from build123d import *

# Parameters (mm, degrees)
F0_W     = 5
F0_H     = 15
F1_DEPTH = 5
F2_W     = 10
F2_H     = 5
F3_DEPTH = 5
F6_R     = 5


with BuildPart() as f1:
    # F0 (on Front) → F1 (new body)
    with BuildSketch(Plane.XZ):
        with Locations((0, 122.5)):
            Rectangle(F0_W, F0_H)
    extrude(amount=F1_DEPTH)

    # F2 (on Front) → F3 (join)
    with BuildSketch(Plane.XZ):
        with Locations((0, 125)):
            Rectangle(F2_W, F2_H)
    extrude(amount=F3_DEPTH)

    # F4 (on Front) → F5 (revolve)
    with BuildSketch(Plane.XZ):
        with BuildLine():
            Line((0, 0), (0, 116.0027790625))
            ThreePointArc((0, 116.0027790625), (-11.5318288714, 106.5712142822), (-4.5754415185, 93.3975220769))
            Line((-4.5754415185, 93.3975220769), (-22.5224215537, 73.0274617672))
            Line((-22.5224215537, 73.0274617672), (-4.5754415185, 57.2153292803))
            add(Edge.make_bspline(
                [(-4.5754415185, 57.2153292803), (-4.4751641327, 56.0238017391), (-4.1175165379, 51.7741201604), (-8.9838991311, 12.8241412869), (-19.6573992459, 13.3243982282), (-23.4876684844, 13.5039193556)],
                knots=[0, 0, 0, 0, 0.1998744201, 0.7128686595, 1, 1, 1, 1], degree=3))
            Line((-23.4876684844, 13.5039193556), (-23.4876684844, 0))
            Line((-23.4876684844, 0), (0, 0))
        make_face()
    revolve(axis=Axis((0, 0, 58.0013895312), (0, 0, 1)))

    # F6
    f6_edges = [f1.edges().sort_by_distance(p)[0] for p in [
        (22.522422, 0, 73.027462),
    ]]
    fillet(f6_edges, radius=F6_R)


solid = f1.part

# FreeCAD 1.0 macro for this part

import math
import FreeCAD as App
import Part
import Sketcher

V = App.Vector


def edges_at(feature, points):
    """Names of the edges that pass closest to the given points."""
    edges = feature.Shape.Edges
    near = lambda p: min(range(len(edges)), key=lambda i: edges[i].distToShape(Part.Vertex(*p))[0])
    return sorted({f"Edge{near(p) + 1}" for p in points})

doc = App.newDocument("Part")
body = doc.addObject("PartDesign::Body", "Body")

# Sketch on XZ plane
sketch1 = body.newObject("Sketcher::SketchObject", "Sketch")
sketch1.AttachmentSupport = (doc.getObject("XZ_Plane"), [""])
sketch1.MapMode = "FlatFace"
sketch1.addGeometry([
    Part.LineSegment(V(-2, 130, 0), V(-2, 115, 0)),
    Part.LineSegment(V(-2, 115, 0), V(2, 115, 0)),
    Part.LineSegment(V(2, 115, 0), V(2, 130, 0)),
    Part.LineSegment(V(2, 130, 0), V(-2, 130, 0)),
], False)
sketch1.addConstraint([
    Sketcher.Constraint("Coincident", 0, 2, 1, 1),
    Sketcher.Constraint("Coincident", 1, 2, 2, 1),
    Sketcher.Constraint("Coincident", 2, 2, 3, 1),
    Sketcher.Constraint("Coincident", 3, 2, 0, 1),
    Sketcher.Constraint("Vertical", 0),
    Sketcher.Constraint("Horizontal", 1),
    Sketcher.Constraint("Vertical", 2),
    Sketcher.Constraint("Horizontal", 3),
    Sketcher.Constraint("DistanceX", 1, 1, 1, 2, 5.0),
    Sketcher.Constraint("DistanceY", 0, 2, 0, 1, 15.0),
    Sketcher.Constraint("DistanceY", -1, 1, 0, 2, 115.0),
    Sketcher.Constraint("DistanceX", 0, 2, -1, 1, 2.5),
])
pad1 = body.newObject("PartDesign::Pad", "Pad")
pad1.Profile = sketch1
pad1.Length = 5

# Sketch on XZ plane
sketch2 = body.newObject("Sketcher::SketchObject", "Sketch001")
sketch2.AttachmentSupport = (doc.getObject("XZ_Plane"), [""])
sketch2.MapMode = "FlatFace"
sketch2.addGeometry([
    Part.LineSegment(V(-5, 128, 0), V(-5, 122, 0)),
    Part.LineSegment(V(-5, 122, 0), V(5, 122, 0)),
    Part.LineSegment(V(5, 122, 0), V(5, 128, 0)),
    Part.LineSegment(V(5, 128, 0), V(-5, 128, 0)),
], False)
sketch2.addConstraint([
    Sketcher.Constraint("Coincident", 0, 2, 1, 1),
    Sketcher.Constraint("Coincident", 1, 2, 2, 1),
    Sketcher.Constraint("Coincident", 2, 2, 3, 1),
    Sketcher.Constraint("Coincident", 3, 2, 0, 1),
    Sketcher.Constraint("Vertical", 0),
    Sketcher.Constraint("Horizontal", 1),
    Sketcher.Constraint("Vertical", 2),
    Sketcher.Constraint("Horizontal", 3),
    Sketcher.Constraint("DistanceX", 1, 1, 1, 2, 10.0),
    Sketcher.Constraint("DistanceY", 0, 2, 0, 1, 5.0),
    Sketcher.Constraint("DistanceX", 0, 2, -1, 1, 5.0),
    Sketcher.Constraint("DistanceY", -1, 1, 0, 2, 122.5),
])
pad2 = body.newObject("PartDesign::Pad", "Pad001")
pad2.Profile = sketch2
pad2.Length = 5

# Sketch on XZ plane
sketch3 = body.newObject("Sketcher::SketchObject", "Sketch002")
sketch3.AttachmentSupport = (doc.getObject("XZ_Plane"), [""])
sketch3.MapMode = "FlatFace"
sketch3.addGeometry([
    Part.LineSegment(V(0, 0, 0), V(0, 116.002779, 0)),  # 0
    Part.ArcOfCircle(Part.Circle(V(0, 104.237102, 0), V(0, 0, 1), 11.765677), math.radians(90), math.radians(247.115146)),  # 1
    Part.LineSegment(V(-4.575442, 93.397522, 0), V(-22.522422, 73.027462, 0)),  # 2
    Part.LineSegment(V(-22.522422, 73.027462, 0), V(-4.575442, 57.215329, 0)),  # 3
    Part.BSplineCurve([V(-4.575442, 57.215329, 0), V(-4.475164, 56.023802, 0), V(-4.117517, 51.77412, 0), V(-8.983899, 12.824141, 0), V(-19.657399, 13.324398, 0), V(-23.487668, 13.503919, 0)], [4, 1, 1, 4], [0, 0.19987442, 0.71286866, 1], False, 3, [1, 1, 1, 1, 1, 1], False),  # 4
    Part.LineSegment(V(-23.487668, 13.503919, 0), V(-23.487668, 0, 0)),  # 5
    Part.LineSegment(V(-23.487668, 0, 0), V(0, 0, 0)),  # 6
], False)
sketch3.addConstraint([
    Sketcher.Constraint("Block", 4),
    Sketcher.Constraint("Coincident", 0, 2, 1, 1),
    Sketcher.Constraint("Coincident", 1, 2, 2, 1),
    Sketcher.Constraint("Coincident", 2, 2, 3, 1),
    Sketcher.Constraint("Coincident", 3, 2, 4, 1),
    Sketcher.Constraint("Coincident", 4, 2, 5, 1),
    Sketcher.Constraint("Coincident", 5, 2, 6, 1),
    Sketcher.Constraint("Coincident", 6, 2, 0, 1),
    Sketcher.Constraint("Vertical", 0),
    Sketcher.Constraint("Vertical", 5),
    Sketcher.Constraint("Horizontal", 6),
    Sketcher.Constraint("Coincident", 6, 2, -1, 1),
    Sketcher.Constraint("PointOnObject", 1, 3, -2),
    Sketcher.Constraint("Perpendicular", 2, 3),
    Sketcher.Constraint("Vertical", 1, 2, 3, 2),
    Sketcher.Constraint("Radius", 1, 11.765677),
    Sketcher.Constraint("DistanceY", 0, 1, 0, 2, 116.002779),
    Sketcher.Constraint("Distance", 2, 27.14836),
])
revolution = body.newObject("PartDesign::Revolution", "Revolution")
revolution.Profile = sketch3
revolution.ReferenceAxis = (sketch3, ["V_Axis"])
revolution.Angle = 360
doc.recompute()

fillet = body.newObject("PartDesign::Fillet", "Fillet")
fillet.Base = (revolution, edges_at(revolution, [(22.522, 0, 73.027)]))
fillet.Radius = 5

doc.recompute()
